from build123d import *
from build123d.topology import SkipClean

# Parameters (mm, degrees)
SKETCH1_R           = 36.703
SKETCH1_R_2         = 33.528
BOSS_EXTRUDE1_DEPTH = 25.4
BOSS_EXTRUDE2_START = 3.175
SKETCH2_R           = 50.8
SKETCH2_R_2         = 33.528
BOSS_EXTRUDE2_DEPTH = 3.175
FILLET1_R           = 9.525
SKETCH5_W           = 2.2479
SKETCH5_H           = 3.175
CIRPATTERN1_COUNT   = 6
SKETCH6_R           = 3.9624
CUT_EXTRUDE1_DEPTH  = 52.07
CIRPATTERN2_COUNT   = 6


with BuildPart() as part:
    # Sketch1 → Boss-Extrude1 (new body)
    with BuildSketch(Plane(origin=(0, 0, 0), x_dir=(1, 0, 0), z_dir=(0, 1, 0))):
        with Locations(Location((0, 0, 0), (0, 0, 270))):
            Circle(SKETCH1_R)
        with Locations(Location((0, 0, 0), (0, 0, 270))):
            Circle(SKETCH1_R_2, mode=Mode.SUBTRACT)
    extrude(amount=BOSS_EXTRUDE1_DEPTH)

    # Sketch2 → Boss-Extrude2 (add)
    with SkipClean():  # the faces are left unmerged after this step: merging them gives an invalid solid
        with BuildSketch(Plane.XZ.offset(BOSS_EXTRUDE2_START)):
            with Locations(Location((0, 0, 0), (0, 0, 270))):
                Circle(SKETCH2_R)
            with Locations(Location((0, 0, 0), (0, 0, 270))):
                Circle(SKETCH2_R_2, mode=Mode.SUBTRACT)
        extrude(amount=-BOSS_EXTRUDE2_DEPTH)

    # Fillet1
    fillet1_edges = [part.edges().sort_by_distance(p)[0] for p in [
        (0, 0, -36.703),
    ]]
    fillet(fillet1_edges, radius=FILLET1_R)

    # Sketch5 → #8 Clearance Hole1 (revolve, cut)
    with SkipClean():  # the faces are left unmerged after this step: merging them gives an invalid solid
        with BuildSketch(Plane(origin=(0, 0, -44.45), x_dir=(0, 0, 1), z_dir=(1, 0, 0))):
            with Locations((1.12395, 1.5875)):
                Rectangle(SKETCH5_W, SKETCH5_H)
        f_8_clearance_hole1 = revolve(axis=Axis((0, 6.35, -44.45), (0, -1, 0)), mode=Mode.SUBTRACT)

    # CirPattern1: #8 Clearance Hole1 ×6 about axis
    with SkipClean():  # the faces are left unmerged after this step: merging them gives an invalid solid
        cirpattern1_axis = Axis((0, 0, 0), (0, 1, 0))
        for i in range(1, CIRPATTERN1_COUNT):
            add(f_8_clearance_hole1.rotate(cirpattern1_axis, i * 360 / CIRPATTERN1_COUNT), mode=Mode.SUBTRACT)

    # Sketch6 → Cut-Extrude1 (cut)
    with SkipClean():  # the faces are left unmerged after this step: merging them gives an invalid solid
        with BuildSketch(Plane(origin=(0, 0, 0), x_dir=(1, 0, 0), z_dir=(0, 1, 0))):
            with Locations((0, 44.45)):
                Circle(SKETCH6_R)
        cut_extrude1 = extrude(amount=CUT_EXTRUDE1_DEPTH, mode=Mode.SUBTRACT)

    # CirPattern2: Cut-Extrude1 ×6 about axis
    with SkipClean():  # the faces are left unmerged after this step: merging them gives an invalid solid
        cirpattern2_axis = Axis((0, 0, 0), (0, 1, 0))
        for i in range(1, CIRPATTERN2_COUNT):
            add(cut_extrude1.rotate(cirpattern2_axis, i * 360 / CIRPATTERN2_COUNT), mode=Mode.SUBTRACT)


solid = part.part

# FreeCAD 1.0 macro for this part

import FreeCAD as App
import Part
import Sketcher

V = App.Vector
Q = App.Units.Quantity


def edges_at(feature, points):
    """Names of the edges that pass closest to the given points."""
    edges = feature.Shape.Edges
    near = lambda p: min(range(len(edges)), key=lambda i: edges[i].distToShape(Part.Vertex(*p))[0])
    return sorted({f"Edge{near(p) + 1}" for p in points})


def add_polygon(sketch, points):
    """Adds a closed chain of lines whose ends are joined by coincident constraints."""
    first, n = sketch.GeometryCount, len(points)
    for a, b in zip(points, points[1:] + points[:1]):
        sketch.addGeometry(Part.LineSegment(App.Vector(*a, 0), App.Vector(*b, 0)), False)
    for i in range(n):
        sketch.addConstraint(Sketcher.Constraint("Coincident", first + i, 2, first + (i + 1) % n, 1))

doc = App.newDocument("Part")
body = doc.addObject("PartDesign::Body", "Body")

# Sketch on XZ plane
sketch1 = body.newObject("Sketcher::SketchObject", "Sketch")
sketch1.AttachmentSupport = (doc.getObject("XZ_Plane"), [""])
sketch1.MapMode = "FlatFace"
sketch1.addGeometry([
    Part.Circle(V(0, 0, 0), V(0, 0, 1), 37),
    Part.Circle(V(0, 0, 0), V(0, 0, 1), 34),
], False)
sketch1.addConstraint([
    Sketcher.Constraint("Coincident", 0, 3, -1, 1),
    Sketcher.Constraint("Coincident", 1, 3, -1, 1),
    Sketcher.Constraint("Diameter", 0, Q("2.89 in")),
    Sketcher.Constraint("Diameter", 1, Q("2.64 in")),
])
pad1 = body.newObject("PartDesign::Pad", "Pad")
pad1.Profile = sketch1
pad1.Length = Q("1 in")
pad1.Reversed = True

# Sketch on XZ plane
sketch2 = body.newObject("Sketcher::SketchObject", "Sketch001")
sketch2.AttachmentSupport = (doc.getObject("XZ_Plane"), [""])
sketch2.MapMode = "FlatFace"
sketch2.AttachmentOffset = App.Placement(V(0, 0, 0.125 * 25.4), App.Rotation())
sketch2.addGeometry([
    Part.Circle(V(0, 0, 0), V(0, 0, 1), 51),
    Part.Circle(V(0, 0, 0), V(0, 0, 1), 34),
], False)
sketch2.addConstraint([
    Sketcher.Constraint("Coincident", 0, 3, -1, 1),
    Sketcher.Constraint("Coincident", 1, 3, -1, 1),
    Sketcher.Constraint("Diameter", 0, Q("4 in")),
    Sketcher.Constraint("Diameter", 1, Q("2.64 in")),
])
pad2 = body.newObject("PartDesign::Pad", "Pad001")
pad2.Profile = sketch2
pad2.Length = Q("0.125 in")
pad2.Reversed = True
doc.recompute()

fillet = body.newObject("PartDesign::Fillet", "Fillet")
fillet.Base = (pad2, edges_at(pad2, [(0, 0, -36.703)]))
fillet.Radius = Q("0.375 in")

# Sketch on YZ plane
sketch3 = body.newObject("Sketcher::SketchObject", "Sketch002")
sketch3.AttachmentSupport = (doc.getObject("YZ_Plane"), [""])
sketch3.MapMode = "FlatFace"
add_polygon(sketch3, [(-3.2, -44.5), (0, -44.5), (0, -42.2), (-3.2, -42.2)])  # lines 0-3
sketch3.addGeometry(Part.LineSegment(V(0, -44.5, 0), V(-3.2, -44.5, 0)), True)  # axis
sketch3.addConstraint([
    Sketcher.Constraint("Horizontal", 0),
    Sketcher.Constraint("Vertical", 1),
    Sketcher.Constraint("Horizontal", 2),
    Sketcher.Constraint("Vertical", 3),
    Sketcher.Constraint("Horizontal", 4),
    Sketcher.Constraint("Coincident", 4, 1, 0, 2),
    Sketcher.Constraint("PointOnObject", 0, 2, -2),
    Sketcher.Constraint("Vertical", 2, 2, 4, 2),
    Sketcher.Constraint("DistanceX", 0, 1, 0, 2, Q("0.125 in")),
    Sketcher.Constraint("DistanceY", 0, 2, -1, 1, Q("1.75 in")),
    Sketcher.Constraint("DistanceY", 1, 1, 1, 2, Q("0.0885 in")),
])
groove = body.newObject("PartDesign::Groove", "Groove")
groove.Profile = sketch3
groove.ReferenceAxis = (sketch3, ["Axis0"])
groove.Angle = 360
doc.recompute()

polarpattern = body.newObject("PartDesign::PolarPattern", "PolarPattern")
polarpattern.Originals = [groove]
polarpattern.Axis = (doc.getObject("Y_Axis"), [""])
polarpattern.Angle = 360
polarpattern.Occurrences = 6
body.Tip = polarpattern

# Sketch on XZ plane
sketch4 = body.newObject("Sketcher::SketchObject", "Sketch003")
sketch4.AttachmentSupport = (doc.getObject("XZ_Plane"), [""])
sketch4.MapMode = "FlatFace"
sketch4.addGeometry(Part.Circle(V(0, -44.5, 0), V(0, 0, 1), 4), False)
sketch4.addConstraint([
    Sketcher.Constraint("PointOnObject", 0, 3, -2),
    Sketcher.Constraint("Diameter", 0, Q("0.312 in")),
    Sketcher.Constraint("DistanceY", 0, 3, -1, 1, Q("1.75 in")),
])
pocket1 = body.newObject("PartDesign::Pocket", "Pocket")
pocket1.Profile = sketch4
pocket1.Length = Q("2.05 in")
doc.recompute()

polarpattern2 = body.newObject("PartDesign::PolarPattern", "PolarPattern001")
polarpattern2.Originals = [pocket1]
polarpattern2.Axis = (doc.getObject("Y_Axis"), [""])
polarpattern2.Angle = 360
polarpattern2.Occurrences = 6
body.Tip = polarpattern2

doc.recompute()
